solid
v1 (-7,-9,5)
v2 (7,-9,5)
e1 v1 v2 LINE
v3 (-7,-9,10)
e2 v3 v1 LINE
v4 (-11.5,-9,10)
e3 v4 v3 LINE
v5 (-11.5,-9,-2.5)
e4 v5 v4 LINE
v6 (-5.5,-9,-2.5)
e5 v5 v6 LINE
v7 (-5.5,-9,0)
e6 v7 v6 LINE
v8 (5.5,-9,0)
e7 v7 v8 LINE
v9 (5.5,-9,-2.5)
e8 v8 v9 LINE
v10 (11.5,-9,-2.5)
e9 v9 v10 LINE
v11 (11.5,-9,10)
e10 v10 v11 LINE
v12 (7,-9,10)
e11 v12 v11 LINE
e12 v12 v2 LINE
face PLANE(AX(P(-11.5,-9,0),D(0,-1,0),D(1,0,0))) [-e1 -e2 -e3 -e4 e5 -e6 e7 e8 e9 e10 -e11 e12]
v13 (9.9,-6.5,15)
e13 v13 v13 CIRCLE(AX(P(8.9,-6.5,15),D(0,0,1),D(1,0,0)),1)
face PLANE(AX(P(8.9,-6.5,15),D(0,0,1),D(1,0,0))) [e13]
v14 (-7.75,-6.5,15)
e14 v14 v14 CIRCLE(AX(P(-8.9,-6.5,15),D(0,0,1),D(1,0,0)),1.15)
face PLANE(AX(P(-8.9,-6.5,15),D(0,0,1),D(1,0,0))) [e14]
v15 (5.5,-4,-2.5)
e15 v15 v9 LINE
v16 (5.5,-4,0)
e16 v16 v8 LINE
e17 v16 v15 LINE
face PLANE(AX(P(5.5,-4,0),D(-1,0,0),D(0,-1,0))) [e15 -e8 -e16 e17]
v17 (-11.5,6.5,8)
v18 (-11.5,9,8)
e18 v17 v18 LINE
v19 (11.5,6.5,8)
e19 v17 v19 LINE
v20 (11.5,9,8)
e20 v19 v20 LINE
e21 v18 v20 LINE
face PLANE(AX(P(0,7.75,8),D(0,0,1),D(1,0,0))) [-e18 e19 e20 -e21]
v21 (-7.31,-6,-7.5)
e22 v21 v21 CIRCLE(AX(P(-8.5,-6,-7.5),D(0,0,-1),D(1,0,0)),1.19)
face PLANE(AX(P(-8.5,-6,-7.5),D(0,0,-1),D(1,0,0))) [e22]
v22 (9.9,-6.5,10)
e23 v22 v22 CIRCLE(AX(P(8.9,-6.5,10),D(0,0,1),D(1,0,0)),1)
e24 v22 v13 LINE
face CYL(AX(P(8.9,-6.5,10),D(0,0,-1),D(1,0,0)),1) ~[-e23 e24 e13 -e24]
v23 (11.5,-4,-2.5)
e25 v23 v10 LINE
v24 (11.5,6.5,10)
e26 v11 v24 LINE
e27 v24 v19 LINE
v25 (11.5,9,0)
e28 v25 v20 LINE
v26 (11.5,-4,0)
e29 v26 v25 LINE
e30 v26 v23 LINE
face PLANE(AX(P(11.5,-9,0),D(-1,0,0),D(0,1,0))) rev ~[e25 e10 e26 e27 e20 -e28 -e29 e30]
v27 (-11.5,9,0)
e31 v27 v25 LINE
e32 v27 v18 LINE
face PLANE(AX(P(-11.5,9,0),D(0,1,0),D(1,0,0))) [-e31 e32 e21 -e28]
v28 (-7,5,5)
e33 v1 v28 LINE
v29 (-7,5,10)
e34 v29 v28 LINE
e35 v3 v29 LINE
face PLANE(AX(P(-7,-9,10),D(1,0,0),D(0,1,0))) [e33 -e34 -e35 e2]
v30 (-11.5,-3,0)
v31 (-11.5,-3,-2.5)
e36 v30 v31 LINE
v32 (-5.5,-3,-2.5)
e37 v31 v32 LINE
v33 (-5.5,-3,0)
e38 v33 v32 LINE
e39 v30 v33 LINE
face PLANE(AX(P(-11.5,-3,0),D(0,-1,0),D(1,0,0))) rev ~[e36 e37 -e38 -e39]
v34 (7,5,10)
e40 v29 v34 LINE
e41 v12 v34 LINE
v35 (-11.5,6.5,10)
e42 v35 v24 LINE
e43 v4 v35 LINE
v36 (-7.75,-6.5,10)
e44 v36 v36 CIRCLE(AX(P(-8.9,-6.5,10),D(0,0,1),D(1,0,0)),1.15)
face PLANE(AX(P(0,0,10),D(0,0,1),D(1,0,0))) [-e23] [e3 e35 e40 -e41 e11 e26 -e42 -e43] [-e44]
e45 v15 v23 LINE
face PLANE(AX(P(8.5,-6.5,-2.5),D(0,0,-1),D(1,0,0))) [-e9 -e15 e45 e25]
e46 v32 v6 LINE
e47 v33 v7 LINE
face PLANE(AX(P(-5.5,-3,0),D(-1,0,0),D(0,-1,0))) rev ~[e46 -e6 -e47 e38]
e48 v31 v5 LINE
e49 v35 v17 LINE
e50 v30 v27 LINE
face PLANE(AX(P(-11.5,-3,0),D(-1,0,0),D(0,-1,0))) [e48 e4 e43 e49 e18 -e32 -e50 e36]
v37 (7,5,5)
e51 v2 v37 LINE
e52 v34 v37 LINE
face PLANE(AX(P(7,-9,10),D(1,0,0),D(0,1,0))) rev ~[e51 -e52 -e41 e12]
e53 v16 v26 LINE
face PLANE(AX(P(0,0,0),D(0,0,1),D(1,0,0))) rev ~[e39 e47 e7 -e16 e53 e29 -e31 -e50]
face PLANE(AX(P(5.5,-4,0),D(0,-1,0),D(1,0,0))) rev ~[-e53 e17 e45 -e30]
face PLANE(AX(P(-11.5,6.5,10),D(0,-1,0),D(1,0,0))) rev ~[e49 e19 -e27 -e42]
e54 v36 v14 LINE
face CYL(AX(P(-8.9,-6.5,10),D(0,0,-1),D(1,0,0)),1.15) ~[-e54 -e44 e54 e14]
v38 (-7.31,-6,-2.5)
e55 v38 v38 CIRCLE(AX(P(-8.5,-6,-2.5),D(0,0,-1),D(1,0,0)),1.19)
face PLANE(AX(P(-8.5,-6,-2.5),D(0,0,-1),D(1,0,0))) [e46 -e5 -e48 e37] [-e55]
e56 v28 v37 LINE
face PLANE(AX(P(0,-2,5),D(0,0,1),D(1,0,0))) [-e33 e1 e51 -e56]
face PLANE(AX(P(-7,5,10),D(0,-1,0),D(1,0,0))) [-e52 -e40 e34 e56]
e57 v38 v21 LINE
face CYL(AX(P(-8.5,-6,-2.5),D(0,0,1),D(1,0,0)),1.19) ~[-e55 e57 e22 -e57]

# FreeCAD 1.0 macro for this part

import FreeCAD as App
import Part
import Sketcher


def add_polygon(sketch, points):
    """Adds a closed chain of lines whose ends are joined by coincident constraints."""
    first, n = sketch.GeometryCount, len(points)
    for a, b in zip(points, points[1:] + points[:1]):
        sketch.addGeometry(Part.LineSegment(App.Vector(*a, 0), App.Vector(*b, 0)), False)
    for i in range(n):
        sketch.addConstraint(Sketcher.Constraint("Coincident", first + i, 2, first + (i + 1) % n, 1))

doc = App.newDocument("Part")
body = doc.addObject("PartDesign::Body", "Body")

# Sketch on XY plane
sketch1 = body.newObject("Sketcher::SketchObject", "Sketch")
sketch1.AttachmentSupport = (doc.getObject("XY_Plane"), [""])
sketch1.MapMode = "FlatFace"
add_polygon(sketch1, [(-12, 9), (-12, -9), (12, -9), (12, 9)])  # lines 0-3
sketch1.addConstraint(Sketcher.Constraint("Vertical", 0))
sketch1.addConstraint(Sketcher.Constraint("Horizontal", 1))
sketch1.addConstraint(Sketcher.Constraint("Vertical", 2))
sketch1.addConstraint(Sketcher.Constraint("Horizontal", 3))
sketch1.addConstraint(Sketcher.Constraint("Symmetric", 0, 2, 2, 2, -1, 1))
sketch1.addConstraint(Sketcher.Constraint("DistanceX", 1, 1, 1, 2, 23.0))
sketch1.addConstraint(Sketcher.Constraint("DistanceY", 0, 2, 0, 1, 18.0))
pad1 = body.newObject("PartDesign::Pad", "Pad")
pad1.Profile = sketch1
pad1.Length = 10

# Sketch on XY plane
sketch2 = body.newObject("Sketcher::SketchObject", "Sketch001")
sketch2.AttachmentSupport = (doc.getObject("XY_Plane"), [""])
sketch2.MapMode = "FlatFace"
add_polygon(sketch2, [(-12, -9), (-12, -3), (-6, -3), (-6, -9)])  # lines 0-3
add_polygon(sketch2, [(6, -9), (6, -4), (12, -4), (12, -9)])  # lines 4-7
sketch2.addConstraint(Sketcher.Constraint("Vertical", 0))
sketch2.addConstraint(Sketcher.Constraint("Horizontal", 1))
sketch2.addConstraint(Sketcher.Constraint("Vertical", 2))
sketch2.addConstraint(Sketcher.Constraint("Horizontal", 3))
sketch2.addConstraint(Sketcher.Constraint("Vertical", 4))
sketch2.addConstraint(Sketcher.Constraint("Horizontal", 5))
sketch2.addConstraint(Sketcher.Constraint("Vertical", 6))
sketch2.addConstraint(Sketcher.Constraint("Horizontal", 7))
sketch2.addConstraint(Sketcher.Constraint("Symmetric", 3, 2, 6, 2, -2))
sketch2.addConstraint(Sketcher.Constraint("Equal", 3, 5))
sketch2.addConstraint(Sketcher.Constraint("Equal", 7, 0))
sketch2.addConstraint(Sketcher.Constraint("DistanceX", 1, 1, 1, 2, 6.0))
sketch2.addConstraint(Sketcher.Constraint("DistanceY", 4, 1, 4, 2, 5.0))
sketch2.addConstraint(Sketcher.Constraint("DistanceY", 0, 2, -1, 1, 3.0))
sketch2.addConstraint(Sketcher.Constraint("DistanceX", 1, 2, 4, 2, 11.0))
pad2 = body.newObject("PartDesign::Pad", "Pad001")
pad2.Profile = sketch2
pad2.Length = 2.5
pad2.Reversed = True

# Sketch on XY plane
sketch3 = body.newObject("Sketcher::SketchObject", "Sketch002")
sketch3.AttachmentSupport = (doc.getObject("XY_Plane"), [""])
sketch3.MapMode = "FlatFace"
sketch3.AttachmentOffset = App.Placement(App.Vector(0, 0, -2.5), App.Rotation())
sketch3.addGeometry(Part.Circle(App.Vector(-8.5, -6, 0), App.Vector(0, 0, 1), 1.2), False)
sketch3.addConstraint(Sketcher.Constraint("Diameter", 0, 2.38))
sketch3.addConstraint(Sketcher.Constraint("DistanceY", 0, 3, -1, 1, 6.0))
sketch3.addConstraint(Sketcher.Constraint("DistanceX", 0, 3, -1, 1, 8.5))
pad3 = body.newObject("PartDesign::Pad", "Pad002")
pad3.Profile = sketch3
pad3.Length = 5
pad3.Reversed = True

# Sketch on XY plane
sketch4 = body.newObject("Sketcher::SketchObject", "Sketch003")
sketch4.AttachmentSupport = (doc.getObject("XY_Plane"), [""])
sketch4.MapMode = "FlatFace"
sketch4.AttachmentOffset = App.Placement(App.Vector(0, 0, 10), App.Rotation())
add_polygon(sketch4, [(-7, 5), (-7, -9), (7, -9), (7, 5)])  # lines 0-3
sketch4.addConstraint(Sketcher.Constraint("Vertical", 0))
sketch4.addConstraint(Sketcher.Constraint("Horizontal", 1))
sketch4.addConstraint(Sketcher.Constraint("Vertical", 2))
sketch4.addConstraint(Sketcher.Constraint("Horizontal", 3))
sketch4.addConstraint(Sketcher.Constraint("Equal", 3, 0))
sketch4.addConstraint(Sketcher.Constraint("DistanceX", 1, 1, 1, 2, 14.0))
sketch4.addConstraint(Sketcher.Constraint("DistanceX", 0, 2, -1, 1, 7.0))
sketch4.addConstraint(Sketcher.Constraint("DistanceY", 0, 2, -1, 1, 9.0))
pocket1 = body.newObject("PartDesign::Pocket", "Pocket")
pocket1.Profile = sketch4
pocket1.Length = 5

# Sketch on XY plane
sketch5 = body.newObject("Sketcher::SketchObject", "Sketch004")
sketch5.AttachmentSupport = (doc.getObject("XY_Plane"), [""])
sketch5.MapMode = "FlatFace"
sketch5.AttachmentOffset = App.Placement(App.Vector(0, 0, 10), App.Rotation())
sketch5.addGeometry(Part.Circle(App.Vector(-8.9, -6.5, 0), App.Vector(0, 0, 1), 1.1), False)
sketch5.addGeometry(Part.Circle(App.Vector(8.9, -6.5, 0), App.Vector(0, 0, 1), 1), False)
sketch5.addConstraint(Sketcher.Constraint("Symmetric", 0, 3, 1, 3, -2))
sketch5.addConstraint(Sketcher.Constraint("Diameter", 1, 2.0))
sketch5.addConstraint(Sketcher.Constraint("Diameter", 0, 2.3))
sketch5.addConstraint(Sketcher.Constraint("DistanceX", 0, 3, -1, 1, 8.9))
sketch5.addConstraint(Sketcher.Constraint("DistanceY", 0, 3, -1, 1, 6.5))
pad4 = body.newObject("PartDesign::Pad", "Pad003")
pad4.Profile = sketch5
pad4.Length = 5

# Sketch on XY plane
sketch6 = body.newObject("Sketcher::SketchObject", "Sketch005")
sketch6.AttachmentSupport = (doc.getObject("XY_Plane"), [""])
sketch6.MapMode = "FlatFace"
sketch6.AttachmentOffset = App.Placement(App.Vector(0, 0, 10), App.Rotation())
add_polygon(sketch6, [(-11.5, 9), (-11.5, 6.5), (11.5, 6.5), (11.5, 9)])  # lines 0-3
sketch6.addConstraint(Sketcher.Constraint("Vertical", 0))
sketch6.addConstraint(Sketcher.Constraint("Horizontal", 1))
sketch6.addConstraint(Sketcher.Constraint("Vertical", 2))
sketch6.addConstraint(Sketcher.Constraint("Horizontal", 3))
sketch6.addConstraint(Sketcher.Constraint("DistanceX", 1, 1, 1, 2, 23.0))
sketch6.addConstraint(Sketcher.Constraint("DistanceY", 0, 2, 0, 1, 2.5))
sketch6.addConstraint(Sketcher.Constraint("DistanceY", -1, 1, 2, 2, 9.0))
sketch6.addConstraint(Sketcher.Constraint("DistanceX", 0, 2, -1, 1, 11.5))
pocket2 = body.newObject("PartDesign::Pocket", "Pocket001")
pocket2.Profile = sketch6
pocket2.Length = 2

doc.recompute()
